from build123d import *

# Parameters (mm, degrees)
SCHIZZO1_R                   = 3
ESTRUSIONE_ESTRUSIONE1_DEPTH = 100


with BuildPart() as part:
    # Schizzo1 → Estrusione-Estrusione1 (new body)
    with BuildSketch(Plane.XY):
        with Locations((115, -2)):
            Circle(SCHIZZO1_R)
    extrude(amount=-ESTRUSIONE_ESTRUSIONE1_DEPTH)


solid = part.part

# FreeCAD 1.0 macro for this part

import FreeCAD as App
import Part
import Sketcher
from FreeCAD import Vector

doc = App.newDocument("Part")
body = doc.addObject("PartDesign::Body", "Body")

sketch1 = doc.addObject("Sketcher::SketchObject", "Sketch")
body.addObject(sketch1)
sketch1.AttachmentSupport = (doc.XY_Plane, [""])
sketch1.MapMode = "FlatFace"
sketch1.addGeometry(Part.Circle(Vector(115, -2, 0), Vector(0, 0, 1), 3), False)
sketch1.addConstraint([
    Sketcher.Constraint("Diameter", 0, 6.0),
    Sketcher.Constraint("DistanceX", -1, 1, 0, 3, 115.0),
    Sketcher.Constraint("DistanceY", 0, 3, -1, 1, 2.0),
])
pad1 = doc.addObject("PartDesign::Pad", "Pad")
body.addObject(pad1)
pad1.Profile = sketch1
pad1.Length = 100
pad1.Reversed = True

doc.recompute()
